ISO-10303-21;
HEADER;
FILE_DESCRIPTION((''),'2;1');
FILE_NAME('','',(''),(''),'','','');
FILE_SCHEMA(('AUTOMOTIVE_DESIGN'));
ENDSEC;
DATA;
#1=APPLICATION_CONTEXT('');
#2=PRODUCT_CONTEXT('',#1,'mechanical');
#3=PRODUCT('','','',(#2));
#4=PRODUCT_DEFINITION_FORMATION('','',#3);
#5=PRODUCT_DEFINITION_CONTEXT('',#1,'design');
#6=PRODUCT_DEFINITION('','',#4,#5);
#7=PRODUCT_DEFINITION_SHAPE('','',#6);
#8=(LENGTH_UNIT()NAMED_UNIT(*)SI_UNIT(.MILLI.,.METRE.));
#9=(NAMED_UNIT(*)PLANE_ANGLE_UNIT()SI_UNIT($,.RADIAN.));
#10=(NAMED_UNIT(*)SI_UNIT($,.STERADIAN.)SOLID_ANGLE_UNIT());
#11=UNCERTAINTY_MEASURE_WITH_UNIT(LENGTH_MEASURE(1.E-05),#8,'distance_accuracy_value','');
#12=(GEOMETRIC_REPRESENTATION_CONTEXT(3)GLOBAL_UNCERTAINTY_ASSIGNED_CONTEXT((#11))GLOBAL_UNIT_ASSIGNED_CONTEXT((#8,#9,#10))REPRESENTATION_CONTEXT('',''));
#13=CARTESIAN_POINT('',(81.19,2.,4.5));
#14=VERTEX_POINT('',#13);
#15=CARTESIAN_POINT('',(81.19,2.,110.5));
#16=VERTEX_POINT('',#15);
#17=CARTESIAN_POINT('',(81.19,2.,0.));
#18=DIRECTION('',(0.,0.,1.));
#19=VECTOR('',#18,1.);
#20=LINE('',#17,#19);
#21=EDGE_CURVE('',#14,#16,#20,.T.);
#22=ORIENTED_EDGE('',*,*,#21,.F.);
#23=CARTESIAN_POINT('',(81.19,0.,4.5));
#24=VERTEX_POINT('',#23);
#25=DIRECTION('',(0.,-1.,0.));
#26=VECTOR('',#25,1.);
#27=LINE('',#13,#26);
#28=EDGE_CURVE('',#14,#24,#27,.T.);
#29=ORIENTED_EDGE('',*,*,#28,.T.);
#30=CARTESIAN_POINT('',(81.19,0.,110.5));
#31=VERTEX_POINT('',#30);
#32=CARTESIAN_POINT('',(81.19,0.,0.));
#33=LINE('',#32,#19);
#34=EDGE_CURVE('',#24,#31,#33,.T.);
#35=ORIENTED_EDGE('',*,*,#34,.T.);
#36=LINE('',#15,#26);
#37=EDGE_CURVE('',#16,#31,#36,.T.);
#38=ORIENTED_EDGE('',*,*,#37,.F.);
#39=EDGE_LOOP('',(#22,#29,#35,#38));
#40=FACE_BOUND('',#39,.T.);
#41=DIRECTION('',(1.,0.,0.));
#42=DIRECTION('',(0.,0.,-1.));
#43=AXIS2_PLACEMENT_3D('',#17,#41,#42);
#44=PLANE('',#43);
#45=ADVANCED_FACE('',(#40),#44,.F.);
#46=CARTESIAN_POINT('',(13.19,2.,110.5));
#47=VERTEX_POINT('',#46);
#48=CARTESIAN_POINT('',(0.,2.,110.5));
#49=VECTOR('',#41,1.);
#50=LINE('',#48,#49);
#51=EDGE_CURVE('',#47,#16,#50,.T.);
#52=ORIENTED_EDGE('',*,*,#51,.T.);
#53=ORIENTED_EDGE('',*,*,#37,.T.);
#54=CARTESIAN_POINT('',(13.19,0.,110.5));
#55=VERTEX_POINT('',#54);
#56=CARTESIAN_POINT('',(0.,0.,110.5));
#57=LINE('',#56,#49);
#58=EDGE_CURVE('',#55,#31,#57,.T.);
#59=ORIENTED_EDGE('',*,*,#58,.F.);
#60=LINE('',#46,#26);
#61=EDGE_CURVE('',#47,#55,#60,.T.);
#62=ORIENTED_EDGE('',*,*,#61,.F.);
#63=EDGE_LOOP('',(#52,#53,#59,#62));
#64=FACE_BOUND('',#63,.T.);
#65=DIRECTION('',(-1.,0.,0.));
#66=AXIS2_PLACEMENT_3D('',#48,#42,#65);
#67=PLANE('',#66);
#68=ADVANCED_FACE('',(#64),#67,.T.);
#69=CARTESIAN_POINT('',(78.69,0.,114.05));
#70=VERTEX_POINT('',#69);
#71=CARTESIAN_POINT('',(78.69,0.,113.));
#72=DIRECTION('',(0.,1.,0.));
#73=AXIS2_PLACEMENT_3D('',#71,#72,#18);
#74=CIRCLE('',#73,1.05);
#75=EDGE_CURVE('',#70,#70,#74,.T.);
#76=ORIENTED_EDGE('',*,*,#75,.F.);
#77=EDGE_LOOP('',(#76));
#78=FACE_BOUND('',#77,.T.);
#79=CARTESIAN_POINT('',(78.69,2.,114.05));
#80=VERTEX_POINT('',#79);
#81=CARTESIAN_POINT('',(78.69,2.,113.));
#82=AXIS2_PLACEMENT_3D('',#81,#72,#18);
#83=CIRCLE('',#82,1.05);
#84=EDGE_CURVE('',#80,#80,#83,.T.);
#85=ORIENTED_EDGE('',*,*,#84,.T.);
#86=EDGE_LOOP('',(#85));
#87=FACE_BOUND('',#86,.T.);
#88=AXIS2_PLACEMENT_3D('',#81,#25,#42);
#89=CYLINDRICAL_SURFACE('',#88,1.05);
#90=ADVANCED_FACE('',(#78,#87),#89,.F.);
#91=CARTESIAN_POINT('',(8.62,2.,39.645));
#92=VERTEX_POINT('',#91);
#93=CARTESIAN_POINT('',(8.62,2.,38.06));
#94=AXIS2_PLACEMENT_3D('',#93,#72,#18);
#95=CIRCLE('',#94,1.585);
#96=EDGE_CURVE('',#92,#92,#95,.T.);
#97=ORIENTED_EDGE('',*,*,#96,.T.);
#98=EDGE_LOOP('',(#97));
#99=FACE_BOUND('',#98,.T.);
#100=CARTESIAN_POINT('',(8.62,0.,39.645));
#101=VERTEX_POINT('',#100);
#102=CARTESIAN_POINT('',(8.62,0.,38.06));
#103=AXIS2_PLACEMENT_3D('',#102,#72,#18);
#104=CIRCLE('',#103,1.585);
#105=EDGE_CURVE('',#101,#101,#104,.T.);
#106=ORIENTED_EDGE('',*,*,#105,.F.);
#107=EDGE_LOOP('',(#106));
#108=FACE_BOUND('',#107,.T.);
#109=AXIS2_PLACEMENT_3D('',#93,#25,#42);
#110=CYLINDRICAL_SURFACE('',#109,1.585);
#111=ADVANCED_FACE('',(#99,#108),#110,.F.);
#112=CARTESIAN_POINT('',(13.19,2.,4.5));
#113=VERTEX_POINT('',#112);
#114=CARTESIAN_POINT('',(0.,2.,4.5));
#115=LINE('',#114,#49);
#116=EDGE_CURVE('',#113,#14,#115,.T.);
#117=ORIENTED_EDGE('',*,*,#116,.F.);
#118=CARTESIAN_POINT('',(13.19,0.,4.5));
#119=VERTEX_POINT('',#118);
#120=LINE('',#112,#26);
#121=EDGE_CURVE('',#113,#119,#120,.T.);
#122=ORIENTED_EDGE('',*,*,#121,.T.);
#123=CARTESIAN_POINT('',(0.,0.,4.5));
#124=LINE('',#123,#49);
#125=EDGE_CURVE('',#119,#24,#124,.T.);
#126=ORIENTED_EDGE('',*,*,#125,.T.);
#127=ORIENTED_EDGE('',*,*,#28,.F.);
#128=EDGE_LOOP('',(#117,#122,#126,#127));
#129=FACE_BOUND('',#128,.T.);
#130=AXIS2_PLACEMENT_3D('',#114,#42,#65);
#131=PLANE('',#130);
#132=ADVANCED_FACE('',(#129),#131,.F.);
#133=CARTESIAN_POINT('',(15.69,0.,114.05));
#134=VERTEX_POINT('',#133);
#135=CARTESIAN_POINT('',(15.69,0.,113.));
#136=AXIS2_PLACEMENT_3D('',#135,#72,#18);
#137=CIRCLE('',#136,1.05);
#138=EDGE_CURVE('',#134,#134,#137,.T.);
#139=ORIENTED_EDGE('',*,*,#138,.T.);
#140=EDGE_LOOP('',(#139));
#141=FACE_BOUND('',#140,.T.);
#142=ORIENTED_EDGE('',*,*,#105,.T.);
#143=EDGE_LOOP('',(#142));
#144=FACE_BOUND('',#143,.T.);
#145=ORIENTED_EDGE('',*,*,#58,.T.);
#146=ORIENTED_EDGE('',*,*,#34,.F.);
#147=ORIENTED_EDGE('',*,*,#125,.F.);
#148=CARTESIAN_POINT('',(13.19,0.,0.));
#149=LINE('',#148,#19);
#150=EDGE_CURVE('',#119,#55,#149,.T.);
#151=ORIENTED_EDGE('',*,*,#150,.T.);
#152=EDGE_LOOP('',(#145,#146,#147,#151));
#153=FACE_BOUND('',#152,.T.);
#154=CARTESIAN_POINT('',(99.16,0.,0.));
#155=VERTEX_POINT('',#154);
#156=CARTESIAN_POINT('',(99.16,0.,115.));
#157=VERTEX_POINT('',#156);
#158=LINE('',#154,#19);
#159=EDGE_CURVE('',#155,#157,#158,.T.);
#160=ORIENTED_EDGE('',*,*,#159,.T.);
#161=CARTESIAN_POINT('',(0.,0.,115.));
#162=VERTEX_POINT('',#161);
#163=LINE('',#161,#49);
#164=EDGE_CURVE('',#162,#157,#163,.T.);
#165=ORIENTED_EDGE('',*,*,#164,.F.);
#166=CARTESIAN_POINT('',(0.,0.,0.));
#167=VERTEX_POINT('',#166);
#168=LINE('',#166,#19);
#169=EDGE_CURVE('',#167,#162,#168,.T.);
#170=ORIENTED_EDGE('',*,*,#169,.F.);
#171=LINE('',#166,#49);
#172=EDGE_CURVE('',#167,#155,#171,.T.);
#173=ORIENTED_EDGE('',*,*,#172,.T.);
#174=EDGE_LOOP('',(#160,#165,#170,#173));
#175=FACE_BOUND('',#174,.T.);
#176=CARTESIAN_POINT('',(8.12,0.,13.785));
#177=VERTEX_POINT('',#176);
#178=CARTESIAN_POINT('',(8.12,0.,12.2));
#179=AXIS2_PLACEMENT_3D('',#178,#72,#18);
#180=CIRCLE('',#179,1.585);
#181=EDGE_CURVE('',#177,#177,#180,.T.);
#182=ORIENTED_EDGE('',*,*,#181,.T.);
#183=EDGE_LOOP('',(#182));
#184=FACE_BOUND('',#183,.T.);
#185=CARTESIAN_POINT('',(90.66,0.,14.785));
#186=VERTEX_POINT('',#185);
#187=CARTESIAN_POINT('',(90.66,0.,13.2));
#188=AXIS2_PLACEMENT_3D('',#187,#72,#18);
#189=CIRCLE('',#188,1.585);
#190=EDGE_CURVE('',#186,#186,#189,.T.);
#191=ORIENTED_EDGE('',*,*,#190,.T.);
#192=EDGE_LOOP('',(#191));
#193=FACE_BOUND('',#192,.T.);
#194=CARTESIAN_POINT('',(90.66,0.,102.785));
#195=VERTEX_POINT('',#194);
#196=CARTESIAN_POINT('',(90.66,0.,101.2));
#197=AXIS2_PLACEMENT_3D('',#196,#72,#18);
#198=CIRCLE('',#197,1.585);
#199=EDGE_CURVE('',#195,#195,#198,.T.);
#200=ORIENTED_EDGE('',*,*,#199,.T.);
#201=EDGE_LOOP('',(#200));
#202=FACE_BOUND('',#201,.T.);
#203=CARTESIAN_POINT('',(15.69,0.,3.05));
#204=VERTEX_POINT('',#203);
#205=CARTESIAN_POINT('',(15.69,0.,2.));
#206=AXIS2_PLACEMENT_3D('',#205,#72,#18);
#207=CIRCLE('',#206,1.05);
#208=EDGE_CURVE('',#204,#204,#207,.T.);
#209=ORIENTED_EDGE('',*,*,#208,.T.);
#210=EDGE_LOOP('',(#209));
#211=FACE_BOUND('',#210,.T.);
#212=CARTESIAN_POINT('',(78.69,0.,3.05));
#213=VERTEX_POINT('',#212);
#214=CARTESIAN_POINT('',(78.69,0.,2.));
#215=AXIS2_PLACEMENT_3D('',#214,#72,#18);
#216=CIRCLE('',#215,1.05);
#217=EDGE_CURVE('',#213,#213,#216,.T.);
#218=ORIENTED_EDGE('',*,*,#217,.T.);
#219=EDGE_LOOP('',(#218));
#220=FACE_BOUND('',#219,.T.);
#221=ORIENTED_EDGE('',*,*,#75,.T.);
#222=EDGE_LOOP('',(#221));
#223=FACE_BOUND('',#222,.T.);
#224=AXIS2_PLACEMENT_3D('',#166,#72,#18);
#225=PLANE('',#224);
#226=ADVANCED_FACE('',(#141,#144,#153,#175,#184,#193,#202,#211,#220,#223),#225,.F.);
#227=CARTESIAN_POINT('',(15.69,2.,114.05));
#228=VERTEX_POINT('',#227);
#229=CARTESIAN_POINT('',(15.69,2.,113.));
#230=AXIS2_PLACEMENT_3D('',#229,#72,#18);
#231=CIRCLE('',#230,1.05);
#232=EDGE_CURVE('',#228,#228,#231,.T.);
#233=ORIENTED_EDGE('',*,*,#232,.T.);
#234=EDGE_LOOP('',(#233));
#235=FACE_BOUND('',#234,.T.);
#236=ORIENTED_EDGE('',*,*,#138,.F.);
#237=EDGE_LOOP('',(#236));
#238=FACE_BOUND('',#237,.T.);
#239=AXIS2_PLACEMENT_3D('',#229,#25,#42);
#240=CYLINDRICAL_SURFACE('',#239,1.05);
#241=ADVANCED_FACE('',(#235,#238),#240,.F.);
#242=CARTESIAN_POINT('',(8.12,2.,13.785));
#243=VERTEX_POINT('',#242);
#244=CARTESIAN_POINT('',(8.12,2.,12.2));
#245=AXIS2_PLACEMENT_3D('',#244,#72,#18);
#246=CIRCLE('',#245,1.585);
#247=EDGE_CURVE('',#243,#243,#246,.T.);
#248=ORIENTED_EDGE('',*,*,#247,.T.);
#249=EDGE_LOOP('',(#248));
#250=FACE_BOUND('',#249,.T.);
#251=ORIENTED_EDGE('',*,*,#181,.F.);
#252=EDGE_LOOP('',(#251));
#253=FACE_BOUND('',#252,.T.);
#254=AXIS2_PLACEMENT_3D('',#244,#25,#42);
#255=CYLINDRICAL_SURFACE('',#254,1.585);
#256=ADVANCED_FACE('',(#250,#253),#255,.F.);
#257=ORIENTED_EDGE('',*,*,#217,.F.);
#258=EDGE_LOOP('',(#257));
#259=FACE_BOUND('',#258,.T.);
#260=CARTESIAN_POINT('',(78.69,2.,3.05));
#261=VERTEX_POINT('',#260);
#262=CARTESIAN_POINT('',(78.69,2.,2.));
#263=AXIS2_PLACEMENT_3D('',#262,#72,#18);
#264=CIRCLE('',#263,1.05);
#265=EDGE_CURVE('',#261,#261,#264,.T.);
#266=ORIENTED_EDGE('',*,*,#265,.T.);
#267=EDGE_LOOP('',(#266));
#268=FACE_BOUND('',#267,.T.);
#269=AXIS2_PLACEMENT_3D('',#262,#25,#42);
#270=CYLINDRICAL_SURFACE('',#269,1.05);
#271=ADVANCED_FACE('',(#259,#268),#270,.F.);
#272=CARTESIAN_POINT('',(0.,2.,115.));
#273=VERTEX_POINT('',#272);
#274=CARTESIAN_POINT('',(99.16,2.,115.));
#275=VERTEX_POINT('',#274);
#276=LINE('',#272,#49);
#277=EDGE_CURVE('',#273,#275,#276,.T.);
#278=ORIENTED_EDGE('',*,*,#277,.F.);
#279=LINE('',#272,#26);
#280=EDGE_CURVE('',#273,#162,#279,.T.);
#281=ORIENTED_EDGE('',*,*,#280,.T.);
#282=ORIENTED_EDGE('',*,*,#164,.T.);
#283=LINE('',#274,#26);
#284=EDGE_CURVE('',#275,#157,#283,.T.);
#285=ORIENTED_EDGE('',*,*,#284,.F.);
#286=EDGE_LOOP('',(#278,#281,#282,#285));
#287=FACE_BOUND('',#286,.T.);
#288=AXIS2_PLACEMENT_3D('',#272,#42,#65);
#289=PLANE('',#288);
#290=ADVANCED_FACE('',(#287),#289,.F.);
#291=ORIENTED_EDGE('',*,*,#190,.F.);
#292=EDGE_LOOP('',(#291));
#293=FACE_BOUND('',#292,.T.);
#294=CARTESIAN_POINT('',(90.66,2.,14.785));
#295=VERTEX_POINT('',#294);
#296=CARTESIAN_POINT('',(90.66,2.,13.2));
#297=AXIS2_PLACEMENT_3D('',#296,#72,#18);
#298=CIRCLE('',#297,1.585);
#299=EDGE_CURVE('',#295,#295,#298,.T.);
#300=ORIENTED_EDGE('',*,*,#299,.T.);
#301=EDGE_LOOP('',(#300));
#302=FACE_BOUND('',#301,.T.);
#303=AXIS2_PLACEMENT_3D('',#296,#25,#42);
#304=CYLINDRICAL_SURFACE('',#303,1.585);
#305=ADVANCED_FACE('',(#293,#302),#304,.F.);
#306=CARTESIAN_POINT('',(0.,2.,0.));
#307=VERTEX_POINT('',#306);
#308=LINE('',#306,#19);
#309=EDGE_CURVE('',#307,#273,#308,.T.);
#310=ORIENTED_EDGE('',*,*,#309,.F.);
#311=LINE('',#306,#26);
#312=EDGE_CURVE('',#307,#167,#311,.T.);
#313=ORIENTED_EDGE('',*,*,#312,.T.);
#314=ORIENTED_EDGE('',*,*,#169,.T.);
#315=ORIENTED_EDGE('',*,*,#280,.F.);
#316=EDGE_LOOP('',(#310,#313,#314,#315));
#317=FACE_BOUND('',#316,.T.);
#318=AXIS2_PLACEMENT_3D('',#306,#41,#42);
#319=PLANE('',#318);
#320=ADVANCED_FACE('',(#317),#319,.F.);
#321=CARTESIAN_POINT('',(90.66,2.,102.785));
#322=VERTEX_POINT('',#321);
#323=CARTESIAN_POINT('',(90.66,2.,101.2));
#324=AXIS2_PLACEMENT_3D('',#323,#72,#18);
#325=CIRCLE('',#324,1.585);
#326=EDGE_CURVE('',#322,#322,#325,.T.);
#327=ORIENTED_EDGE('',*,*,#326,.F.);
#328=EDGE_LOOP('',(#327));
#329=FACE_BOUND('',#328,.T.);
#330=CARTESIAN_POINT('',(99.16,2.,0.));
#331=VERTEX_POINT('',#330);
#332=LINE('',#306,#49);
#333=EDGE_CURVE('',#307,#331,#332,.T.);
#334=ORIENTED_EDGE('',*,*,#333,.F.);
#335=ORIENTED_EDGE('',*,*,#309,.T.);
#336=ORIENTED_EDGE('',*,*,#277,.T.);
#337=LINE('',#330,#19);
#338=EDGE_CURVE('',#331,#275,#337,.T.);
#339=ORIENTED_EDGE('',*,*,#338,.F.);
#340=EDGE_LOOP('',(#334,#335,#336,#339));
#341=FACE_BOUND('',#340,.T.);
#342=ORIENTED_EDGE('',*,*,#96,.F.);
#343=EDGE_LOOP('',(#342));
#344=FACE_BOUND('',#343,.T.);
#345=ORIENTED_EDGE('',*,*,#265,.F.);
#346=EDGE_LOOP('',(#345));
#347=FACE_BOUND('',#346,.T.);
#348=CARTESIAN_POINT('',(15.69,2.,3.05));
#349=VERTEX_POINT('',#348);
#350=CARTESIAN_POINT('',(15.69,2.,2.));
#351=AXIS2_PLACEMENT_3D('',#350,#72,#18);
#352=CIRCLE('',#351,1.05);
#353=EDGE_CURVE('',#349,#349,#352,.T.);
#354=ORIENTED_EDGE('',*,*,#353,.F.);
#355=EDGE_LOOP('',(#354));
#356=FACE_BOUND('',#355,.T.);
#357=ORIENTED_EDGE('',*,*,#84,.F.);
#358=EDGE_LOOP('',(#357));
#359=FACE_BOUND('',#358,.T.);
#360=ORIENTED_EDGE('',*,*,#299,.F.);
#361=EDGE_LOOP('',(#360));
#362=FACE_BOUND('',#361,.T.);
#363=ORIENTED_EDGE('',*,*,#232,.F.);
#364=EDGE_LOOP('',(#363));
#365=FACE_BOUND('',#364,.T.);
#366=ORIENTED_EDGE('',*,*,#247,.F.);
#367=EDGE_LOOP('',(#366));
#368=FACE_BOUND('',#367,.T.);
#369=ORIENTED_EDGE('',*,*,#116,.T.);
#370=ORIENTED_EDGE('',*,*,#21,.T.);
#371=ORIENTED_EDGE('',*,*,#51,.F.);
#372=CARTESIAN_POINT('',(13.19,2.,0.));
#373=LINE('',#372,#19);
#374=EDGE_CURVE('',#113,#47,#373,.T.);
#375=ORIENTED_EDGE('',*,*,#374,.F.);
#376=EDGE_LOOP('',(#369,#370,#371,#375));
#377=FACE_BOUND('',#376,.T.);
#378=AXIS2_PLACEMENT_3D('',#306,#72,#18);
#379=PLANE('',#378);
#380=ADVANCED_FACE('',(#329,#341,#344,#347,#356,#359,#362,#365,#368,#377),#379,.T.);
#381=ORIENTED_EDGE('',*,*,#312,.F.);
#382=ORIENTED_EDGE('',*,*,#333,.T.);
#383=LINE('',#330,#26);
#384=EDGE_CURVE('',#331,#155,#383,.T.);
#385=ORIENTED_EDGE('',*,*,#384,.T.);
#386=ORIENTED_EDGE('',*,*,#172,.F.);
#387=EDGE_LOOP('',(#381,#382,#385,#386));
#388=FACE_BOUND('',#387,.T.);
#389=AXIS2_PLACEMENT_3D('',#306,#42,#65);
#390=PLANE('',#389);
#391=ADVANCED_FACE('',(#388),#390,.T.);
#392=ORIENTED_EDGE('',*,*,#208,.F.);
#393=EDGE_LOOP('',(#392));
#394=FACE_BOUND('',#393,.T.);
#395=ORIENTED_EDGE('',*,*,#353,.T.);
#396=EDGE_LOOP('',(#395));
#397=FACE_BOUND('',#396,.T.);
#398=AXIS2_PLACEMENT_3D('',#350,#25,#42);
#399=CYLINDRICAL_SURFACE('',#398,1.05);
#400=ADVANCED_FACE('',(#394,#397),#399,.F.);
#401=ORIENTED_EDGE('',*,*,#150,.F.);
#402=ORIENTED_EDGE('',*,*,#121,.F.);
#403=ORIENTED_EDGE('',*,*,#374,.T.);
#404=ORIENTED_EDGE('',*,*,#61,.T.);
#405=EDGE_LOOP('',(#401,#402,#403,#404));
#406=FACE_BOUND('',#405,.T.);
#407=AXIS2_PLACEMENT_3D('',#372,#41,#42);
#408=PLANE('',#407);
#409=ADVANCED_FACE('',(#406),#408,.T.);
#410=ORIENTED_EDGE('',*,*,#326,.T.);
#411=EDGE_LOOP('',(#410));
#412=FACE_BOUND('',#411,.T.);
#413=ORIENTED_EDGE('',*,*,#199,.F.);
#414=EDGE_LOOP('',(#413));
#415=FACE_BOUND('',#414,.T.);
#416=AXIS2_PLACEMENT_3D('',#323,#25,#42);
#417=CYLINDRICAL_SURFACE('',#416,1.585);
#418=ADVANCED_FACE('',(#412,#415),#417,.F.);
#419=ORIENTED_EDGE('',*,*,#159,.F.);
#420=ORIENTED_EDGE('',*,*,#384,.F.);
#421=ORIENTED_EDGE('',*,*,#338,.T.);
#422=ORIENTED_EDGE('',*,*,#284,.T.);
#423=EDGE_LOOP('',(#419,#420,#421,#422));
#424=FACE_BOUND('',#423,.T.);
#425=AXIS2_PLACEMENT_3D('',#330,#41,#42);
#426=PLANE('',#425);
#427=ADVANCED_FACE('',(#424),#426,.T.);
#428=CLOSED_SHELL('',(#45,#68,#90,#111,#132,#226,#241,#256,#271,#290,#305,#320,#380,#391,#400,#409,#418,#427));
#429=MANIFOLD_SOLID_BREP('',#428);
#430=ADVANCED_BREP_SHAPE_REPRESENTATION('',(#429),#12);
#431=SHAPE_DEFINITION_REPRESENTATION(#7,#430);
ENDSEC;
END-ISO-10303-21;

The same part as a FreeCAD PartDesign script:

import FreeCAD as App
import Part
import Sketcher
from FreeCAD import Vector
Q = App.Units.Quantity


def add_polygon(sketch, points):
    """Adds a closed chain of lines whose ends are joined by coincident constraints."""
    first, n = sketch.GeometryCount, len(points)
    for a, b in zip(points, points[1:] + points[:1]):
        sketch.addGeometry(Part.LineSegment(App.Vector(*a, 0), App.Vector(*b, 0)), False)
    for i in range(n):
        sketch.addConstraint(Sketcher.Constraint("Coincident", first + i, 2, first + (i + 1) % n, 1))

doc = App.newDocument("Part")
body = doc.addObject("PartDesign::Body", "Body")

# Sketch on XZ plane
sketch1 = doc.addObject("Sketcher::SketchObject", "Sketch")
body.addObject(sketch1)
sketch1.AttachmentSupport = (doc.XZ_Plane, [""])
sketch1.MapMode = "FlatFace"
add_polygon(sketch1, [(0, 0), (0, 115), (99.16, 115), (99.16, 0)])  # lines 0-3
sketch1.addGeometry(Part.Circle(Vector(15.69, 113, 0), Vector(0, 0, 1), 1.05), False)  # 4
sketch1.addGeometry(Part.Circle(Vector(78.69, 113, 0), Vector(0, 0, 1), 1.05), False)  # 5
sketch1.addGeometry(Part.Circle(Vector(90.66, 101.2, 0), Vector(0, 0, 1), 1.585), False)  # 6
sketch1.addGeometry(Part.Circle(Vector(8.62, 38.06, 0), Vector(0, 0, 1), 1.585), False)  # 7
add_polygon(sketch1, [(81.19, 110.5), (13.19, 110.5), (13.19, 4.5), (81.19, 4.5)])  # lines 8-11
sketch1.addGeometry(Part.Circle(Vector(8.12, 12.2, 0), Vector(0, 0, 1), 1.585), False)  # 12
sketch1.addGeometry(Part.Circle(Vector(15.69, 2, 0), Vector(0, 0, 1), 1.05), False)  # 13
sketch1.addGeometry(Part.Circle(Vector(78.69, 2, 0), Vector(0, 0, 1), 1.05), False)  # 14
sketch1.addGeometry(Part.Circle(Vector(90.66, 13.2, 0), Vector(0, 0, 1), 1.585), False)  # 15
sketch1.addConstraint([
    Sketcher.Constraint("Vertical", 0),
    Sketcher.Constraint("Horizontal", 1),
    Sketcher.Constraint("Vertical", 2),
    Sketcher.Constraint("Horizontal", 3),
    Sketcher.Constraint("Horizontal", 8),
    Sketcher.Constraint("Vertical", 9),
    Sketcher.Constraint("Horizontal", 10),
    Sketcher.Constraint("Vertical", 11),
    Sketcher.Constraint("Coincident", 3, 2, -1, 1),
    Sketcher.Constraint("Equal", 4, 5),
    Sketcher.Constraint("Equal", 6, 7),
    Sketcher.Constraint("Equal", 7, 12),
    Sketcher.Constraint("Equal", 5, 13),
    Sketcher.Constraint("Equal", 13, 14),
    Sketcher.Constraint("Equal", 12, 15),
    Sketcher.Constraint("Horizontal", 4, 3, 5, 3),
    Sketcher.Constraint("Horizontal", 13, 3, 14, 3),
    Sketcher.Constraint("Vertical", 4, 3, 13, 3),
    Sketcher.Constraint("Vertical", 5, 3, 14, 3),
    Sketcher.Constraint("Vertical", 6, 3, 15, 3),
    Sketcher.Constraint("Diameter", 4, Q("2.1 mm")),
    Sketcher.Constraint("Diameter", 6, Q("3.17 mm")),
    Sketcher.Constraint("DistanceX", 8, 2, 8, 1, Q("68 mm")),
    Sketcher.Constraint("DistanceY", 0, 1, 0, 2, Q("115 mm")),
    Sketcher.Constraint("DistanceY", 9, 2, 9, 1, Q("106 mm")),
    Sketcher.Constraint("DistanceY", -1, 1, 4, 3, Q("113 mm")),
    Sketcher.Constraint("DistanceY", -1, 1, 13, 3, Q("2 mm")),
    Sketcher.Constraint("DistanceX", 4, 3, 5, 3, Q("63 mm")),
    Sketcher.Constraint("DistanceY", 12, 3, 6, 3, Q("89 mm")),
    Sketcher.Constraint("DistanceY", 12, 3, 15, 3, Q("1 mm")),
    Sketcher.Constraint("DistanceX", 1, 1, 1, 2, Q("99.16 mm")),
    Sketcher.Constraint("DistanceY", -1, 1, 6, 3, Q("101.2 mm")),
    Sketcher.Constraint("DistanceY", -1, 1, 8, 2, Q("110.5 mm")),
    Sketcher.Constraint("DistanceX", 12, 3, 7, 3, Q("0.5 mm")),
    Sketcher.Constraint("DistanceX", 6, 3, 1, 2, Q("8.5 mm")),
    Sketcher.Constraint("DistanceX", 8, 2, 4, 3, Q("2.5 mm")),
    Sketcher.Constraint("DistanceX", -1, 1, 4, 3, Q("15.69 mm")),
    Sketcher.Constraint("DistanceX", -1, 1, 7, 3, Q("8.62 mm")),
    Sketcher.Constraint("DistanceY", -1, 1, 7, 3, Q("38.06 mm")),
])
pad1 = doc.addObject("PartDesign::Pad", "Pad")
body.addObject(pad1)
pad1.Profile = sketch1
pad1.Length = 2
pad1.Reversed = True

doc.recompute()
